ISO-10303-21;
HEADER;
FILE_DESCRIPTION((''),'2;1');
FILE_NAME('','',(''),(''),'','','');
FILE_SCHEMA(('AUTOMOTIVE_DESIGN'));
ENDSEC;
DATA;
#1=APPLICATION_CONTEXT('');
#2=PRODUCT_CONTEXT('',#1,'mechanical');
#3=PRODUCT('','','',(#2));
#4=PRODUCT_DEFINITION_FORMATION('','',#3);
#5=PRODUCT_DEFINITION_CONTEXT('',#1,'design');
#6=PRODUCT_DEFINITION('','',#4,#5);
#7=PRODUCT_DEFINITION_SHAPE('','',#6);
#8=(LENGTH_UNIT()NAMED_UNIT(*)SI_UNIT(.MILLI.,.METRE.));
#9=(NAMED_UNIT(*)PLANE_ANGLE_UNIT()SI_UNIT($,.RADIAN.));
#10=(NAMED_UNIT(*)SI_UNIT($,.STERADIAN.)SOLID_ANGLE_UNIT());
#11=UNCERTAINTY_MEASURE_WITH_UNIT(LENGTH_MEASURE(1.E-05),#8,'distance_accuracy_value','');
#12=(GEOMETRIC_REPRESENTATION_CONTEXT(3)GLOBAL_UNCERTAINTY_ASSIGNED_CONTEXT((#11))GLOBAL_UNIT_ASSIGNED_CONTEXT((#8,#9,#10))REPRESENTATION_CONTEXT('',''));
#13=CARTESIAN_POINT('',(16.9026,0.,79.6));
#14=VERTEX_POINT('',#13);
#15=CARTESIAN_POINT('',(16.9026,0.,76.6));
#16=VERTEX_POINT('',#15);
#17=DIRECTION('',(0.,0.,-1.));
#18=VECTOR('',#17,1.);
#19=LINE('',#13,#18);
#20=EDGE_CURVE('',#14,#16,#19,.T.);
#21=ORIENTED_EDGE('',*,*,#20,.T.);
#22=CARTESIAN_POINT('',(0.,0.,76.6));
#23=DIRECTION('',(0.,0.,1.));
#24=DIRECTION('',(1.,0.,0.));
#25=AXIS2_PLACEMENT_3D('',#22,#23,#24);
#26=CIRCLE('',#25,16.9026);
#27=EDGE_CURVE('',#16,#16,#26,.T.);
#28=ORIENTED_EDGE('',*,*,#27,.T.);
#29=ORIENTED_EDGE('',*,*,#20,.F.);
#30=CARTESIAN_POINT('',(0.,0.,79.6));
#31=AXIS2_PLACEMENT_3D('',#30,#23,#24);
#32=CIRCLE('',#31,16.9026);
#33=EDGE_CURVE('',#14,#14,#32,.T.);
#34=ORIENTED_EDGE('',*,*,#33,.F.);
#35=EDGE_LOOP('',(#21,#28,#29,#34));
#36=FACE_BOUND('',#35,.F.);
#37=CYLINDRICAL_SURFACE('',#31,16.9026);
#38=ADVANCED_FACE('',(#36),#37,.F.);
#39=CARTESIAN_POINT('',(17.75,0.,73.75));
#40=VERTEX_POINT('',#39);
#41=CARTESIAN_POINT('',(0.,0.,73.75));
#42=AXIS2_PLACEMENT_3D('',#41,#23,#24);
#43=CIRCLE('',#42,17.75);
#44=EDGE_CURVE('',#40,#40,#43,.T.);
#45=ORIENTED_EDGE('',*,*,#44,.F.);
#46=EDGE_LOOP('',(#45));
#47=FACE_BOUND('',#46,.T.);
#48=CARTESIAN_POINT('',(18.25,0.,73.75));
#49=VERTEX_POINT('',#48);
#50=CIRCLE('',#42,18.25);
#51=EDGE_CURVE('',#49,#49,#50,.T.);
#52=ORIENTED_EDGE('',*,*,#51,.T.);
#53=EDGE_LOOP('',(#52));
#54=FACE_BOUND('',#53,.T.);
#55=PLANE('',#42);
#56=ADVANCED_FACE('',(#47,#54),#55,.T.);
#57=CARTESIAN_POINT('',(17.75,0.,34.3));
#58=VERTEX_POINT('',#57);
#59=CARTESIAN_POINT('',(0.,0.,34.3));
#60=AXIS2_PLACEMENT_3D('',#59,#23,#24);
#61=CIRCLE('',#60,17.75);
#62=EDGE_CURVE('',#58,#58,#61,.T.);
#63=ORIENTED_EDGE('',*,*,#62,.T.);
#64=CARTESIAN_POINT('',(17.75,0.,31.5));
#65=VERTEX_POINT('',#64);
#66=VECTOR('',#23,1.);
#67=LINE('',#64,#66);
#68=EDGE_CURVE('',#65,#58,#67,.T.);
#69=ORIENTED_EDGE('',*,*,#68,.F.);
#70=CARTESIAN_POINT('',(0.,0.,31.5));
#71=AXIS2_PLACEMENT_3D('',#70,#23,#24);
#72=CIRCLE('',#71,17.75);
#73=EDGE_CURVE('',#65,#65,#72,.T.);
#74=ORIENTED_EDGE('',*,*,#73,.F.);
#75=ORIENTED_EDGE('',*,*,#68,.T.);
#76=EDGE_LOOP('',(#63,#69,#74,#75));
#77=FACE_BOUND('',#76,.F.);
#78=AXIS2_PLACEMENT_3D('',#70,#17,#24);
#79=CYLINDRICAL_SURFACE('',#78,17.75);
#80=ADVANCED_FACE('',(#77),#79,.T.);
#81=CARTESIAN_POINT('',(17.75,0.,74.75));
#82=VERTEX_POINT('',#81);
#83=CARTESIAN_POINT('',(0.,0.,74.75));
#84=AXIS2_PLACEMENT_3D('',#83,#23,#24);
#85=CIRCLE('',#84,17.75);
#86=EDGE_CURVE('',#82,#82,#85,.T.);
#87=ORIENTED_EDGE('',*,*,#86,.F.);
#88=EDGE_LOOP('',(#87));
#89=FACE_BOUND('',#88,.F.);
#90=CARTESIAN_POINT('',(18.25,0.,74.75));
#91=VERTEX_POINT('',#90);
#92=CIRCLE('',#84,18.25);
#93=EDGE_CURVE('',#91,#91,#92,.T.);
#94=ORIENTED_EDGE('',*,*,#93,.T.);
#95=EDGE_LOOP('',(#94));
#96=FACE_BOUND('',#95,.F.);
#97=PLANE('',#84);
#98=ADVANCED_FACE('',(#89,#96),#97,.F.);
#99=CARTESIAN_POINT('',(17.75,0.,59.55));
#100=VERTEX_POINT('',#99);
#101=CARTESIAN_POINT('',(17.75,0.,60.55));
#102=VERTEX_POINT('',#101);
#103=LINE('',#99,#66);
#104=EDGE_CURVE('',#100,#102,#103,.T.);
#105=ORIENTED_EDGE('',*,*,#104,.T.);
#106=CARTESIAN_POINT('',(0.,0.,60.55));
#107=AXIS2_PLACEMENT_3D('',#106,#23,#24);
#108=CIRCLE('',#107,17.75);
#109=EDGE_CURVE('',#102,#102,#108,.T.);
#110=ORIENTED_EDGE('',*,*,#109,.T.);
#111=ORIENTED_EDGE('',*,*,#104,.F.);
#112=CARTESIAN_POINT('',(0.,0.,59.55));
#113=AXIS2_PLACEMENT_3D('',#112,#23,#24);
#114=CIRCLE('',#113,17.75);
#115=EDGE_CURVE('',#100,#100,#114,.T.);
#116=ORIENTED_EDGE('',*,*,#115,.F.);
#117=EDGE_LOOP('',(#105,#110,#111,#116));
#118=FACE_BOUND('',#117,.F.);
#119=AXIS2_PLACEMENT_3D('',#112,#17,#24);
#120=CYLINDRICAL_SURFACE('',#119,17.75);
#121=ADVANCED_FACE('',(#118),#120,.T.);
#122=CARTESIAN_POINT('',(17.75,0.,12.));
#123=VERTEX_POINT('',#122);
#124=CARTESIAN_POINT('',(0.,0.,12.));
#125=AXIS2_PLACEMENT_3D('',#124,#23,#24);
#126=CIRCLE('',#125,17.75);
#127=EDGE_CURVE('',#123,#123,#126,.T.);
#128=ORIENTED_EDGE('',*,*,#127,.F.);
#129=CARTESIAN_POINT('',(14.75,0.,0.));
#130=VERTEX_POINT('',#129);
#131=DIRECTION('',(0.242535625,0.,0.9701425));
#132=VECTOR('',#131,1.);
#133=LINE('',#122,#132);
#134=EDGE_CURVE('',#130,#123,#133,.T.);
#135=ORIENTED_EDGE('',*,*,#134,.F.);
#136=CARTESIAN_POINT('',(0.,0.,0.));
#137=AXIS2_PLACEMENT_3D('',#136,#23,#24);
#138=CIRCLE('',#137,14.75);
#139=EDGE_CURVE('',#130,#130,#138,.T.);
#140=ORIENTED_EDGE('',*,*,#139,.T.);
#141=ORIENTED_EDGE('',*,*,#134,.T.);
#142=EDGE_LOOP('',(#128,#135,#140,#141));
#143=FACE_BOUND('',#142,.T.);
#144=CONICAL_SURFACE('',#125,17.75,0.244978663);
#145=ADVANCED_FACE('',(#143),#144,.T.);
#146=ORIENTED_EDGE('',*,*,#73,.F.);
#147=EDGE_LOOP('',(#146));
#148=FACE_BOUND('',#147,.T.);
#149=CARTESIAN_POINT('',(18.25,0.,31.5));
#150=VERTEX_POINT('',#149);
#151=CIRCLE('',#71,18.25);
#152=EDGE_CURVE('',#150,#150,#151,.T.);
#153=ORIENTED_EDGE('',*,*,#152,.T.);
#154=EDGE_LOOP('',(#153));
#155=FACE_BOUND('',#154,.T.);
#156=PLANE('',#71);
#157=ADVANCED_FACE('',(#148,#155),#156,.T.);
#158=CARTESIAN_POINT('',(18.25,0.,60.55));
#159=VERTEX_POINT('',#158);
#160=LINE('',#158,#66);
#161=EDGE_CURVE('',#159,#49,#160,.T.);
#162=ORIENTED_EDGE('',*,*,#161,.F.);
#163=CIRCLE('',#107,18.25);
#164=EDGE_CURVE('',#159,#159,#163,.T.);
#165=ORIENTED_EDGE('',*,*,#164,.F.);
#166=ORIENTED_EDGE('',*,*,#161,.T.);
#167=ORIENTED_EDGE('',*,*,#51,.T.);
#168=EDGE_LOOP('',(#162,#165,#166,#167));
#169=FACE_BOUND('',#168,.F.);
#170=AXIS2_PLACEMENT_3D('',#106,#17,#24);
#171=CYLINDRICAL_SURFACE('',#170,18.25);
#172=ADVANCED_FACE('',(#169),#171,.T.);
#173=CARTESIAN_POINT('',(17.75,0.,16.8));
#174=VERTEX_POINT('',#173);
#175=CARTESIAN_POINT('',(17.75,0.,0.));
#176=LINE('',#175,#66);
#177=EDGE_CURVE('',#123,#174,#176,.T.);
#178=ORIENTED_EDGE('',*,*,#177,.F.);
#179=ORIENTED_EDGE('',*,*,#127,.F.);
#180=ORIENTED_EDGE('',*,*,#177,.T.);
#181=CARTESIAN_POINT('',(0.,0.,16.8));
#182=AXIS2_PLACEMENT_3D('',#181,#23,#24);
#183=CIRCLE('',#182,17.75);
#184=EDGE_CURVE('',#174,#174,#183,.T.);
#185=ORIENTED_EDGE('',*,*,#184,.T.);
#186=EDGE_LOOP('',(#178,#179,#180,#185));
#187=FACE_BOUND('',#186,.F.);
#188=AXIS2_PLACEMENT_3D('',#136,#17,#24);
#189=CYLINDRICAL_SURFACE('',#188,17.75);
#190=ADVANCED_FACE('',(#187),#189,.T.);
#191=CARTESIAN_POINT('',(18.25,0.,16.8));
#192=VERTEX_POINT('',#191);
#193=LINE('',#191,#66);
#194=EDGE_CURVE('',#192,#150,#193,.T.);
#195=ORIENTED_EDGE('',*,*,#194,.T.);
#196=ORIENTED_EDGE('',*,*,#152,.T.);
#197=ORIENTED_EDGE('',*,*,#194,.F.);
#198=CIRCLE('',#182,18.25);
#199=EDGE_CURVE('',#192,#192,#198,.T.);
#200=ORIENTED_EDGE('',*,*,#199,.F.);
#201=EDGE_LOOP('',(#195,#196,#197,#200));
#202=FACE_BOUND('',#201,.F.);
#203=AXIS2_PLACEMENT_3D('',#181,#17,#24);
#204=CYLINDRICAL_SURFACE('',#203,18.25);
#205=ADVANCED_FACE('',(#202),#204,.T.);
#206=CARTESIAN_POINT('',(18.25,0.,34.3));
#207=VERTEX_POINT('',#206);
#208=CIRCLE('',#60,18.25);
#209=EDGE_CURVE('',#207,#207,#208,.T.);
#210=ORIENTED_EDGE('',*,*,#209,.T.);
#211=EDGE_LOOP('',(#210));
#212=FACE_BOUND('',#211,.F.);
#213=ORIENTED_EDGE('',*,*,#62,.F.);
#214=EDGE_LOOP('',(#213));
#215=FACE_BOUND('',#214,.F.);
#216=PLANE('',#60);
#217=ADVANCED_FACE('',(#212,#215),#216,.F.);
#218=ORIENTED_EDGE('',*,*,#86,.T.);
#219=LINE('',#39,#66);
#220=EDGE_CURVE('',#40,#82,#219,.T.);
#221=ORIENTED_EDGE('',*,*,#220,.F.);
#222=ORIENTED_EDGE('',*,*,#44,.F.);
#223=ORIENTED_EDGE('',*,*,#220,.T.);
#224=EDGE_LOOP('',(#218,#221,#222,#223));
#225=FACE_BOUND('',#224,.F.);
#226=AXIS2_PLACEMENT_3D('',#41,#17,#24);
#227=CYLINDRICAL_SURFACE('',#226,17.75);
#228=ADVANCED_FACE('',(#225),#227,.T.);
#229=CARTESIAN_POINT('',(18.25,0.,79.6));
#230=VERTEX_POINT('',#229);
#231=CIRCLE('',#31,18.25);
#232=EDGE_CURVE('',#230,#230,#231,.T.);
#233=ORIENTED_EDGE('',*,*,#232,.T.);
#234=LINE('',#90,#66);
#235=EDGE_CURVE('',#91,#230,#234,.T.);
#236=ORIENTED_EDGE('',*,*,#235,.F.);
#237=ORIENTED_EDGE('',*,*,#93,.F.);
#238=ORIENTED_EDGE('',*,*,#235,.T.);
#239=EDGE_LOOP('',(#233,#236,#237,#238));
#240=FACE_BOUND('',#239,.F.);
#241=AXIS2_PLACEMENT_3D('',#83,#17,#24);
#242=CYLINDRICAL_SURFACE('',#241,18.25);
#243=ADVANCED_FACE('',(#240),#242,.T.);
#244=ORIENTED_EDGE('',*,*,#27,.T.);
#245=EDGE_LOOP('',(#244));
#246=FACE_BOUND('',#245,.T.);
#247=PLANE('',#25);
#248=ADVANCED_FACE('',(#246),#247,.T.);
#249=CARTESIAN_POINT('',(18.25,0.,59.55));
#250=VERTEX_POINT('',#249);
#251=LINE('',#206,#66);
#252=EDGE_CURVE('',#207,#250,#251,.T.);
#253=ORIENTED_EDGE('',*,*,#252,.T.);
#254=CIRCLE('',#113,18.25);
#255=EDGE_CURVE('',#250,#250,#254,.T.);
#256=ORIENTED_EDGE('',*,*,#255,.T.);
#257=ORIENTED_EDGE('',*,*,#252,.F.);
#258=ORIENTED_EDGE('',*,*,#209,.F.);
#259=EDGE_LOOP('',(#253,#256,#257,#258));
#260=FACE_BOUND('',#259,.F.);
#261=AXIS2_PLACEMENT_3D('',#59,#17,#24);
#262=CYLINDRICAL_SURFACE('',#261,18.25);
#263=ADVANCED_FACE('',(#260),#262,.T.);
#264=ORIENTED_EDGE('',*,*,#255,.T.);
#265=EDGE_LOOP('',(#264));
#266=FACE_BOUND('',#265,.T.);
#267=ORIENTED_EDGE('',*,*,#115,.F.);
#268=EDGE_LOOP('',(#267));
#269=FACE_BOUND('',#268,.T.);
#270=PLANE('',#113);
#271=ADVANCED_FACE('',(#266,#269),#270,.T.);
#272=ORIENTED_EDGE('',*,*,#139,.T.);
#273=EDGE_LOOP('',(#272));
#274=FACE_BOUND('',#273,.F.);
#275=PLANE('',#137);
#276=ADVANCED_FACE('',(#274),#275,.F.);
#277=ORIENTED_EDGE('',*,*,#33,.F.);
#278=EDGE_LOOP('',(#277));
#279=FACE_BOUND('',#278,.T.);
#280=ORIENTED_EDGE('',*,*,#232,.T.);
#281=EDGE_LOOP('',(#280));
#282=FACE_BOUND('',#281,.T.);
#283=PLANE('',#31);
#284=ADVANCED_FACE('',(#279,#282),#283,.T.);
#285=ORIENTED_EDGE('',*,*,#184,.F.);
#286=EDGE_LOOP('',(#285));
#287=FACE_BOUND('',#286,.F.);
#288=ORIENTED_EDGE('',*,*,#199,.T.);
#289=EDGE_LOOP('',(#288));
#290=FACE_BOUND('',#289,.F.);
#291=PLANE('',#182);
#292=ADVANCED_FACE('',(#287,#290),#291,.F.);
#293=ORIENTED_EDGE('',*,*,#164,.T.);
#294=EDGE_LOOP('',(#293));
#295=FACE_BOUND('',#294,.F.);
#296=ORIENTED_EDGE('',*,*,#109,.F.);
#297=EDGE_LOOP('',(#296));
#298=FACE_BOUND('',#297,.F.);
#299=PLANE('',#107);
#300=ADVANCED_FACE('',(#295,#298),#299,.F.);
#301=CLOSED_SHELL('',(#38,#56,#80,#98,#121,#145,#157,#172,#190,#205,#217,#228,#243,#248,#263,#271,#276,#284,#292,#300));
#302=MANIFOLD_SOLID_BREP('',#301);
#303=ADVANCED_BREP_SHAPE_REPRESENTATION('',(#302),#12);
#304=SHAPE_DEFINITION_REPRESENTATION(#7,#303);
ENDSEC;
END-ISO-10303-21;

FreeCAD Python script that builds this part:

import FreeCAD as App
import Part
import Sketcher
Q = App.Units.Quantity


def edges_at(feature, points):
    """Names of the edges that pass closest to the given points."""
    edges = feature.Shape.Edges
    near = lambda p: min(range(len(edges)), key=lambda i: edges[i].distToShape(Part.Vertex(*p))[0])
    return sorted({f"Edge{near(p) + 1}" for p in points})

doc = App.newDocument("Part")
body = doc.addObject("PartDesign::Body", "Body")

# Sketch on XY plane
sketch1 = doc.addObject("Sketcher::SketchObject", "Sketch")
body.addObject(sketch1)
sketch1.AttachmentSupport = (doc.XY_Plane, [""])
sketch1.MapMode = "FlatFace"
sketch1.addGeometry(Part.Circle(App.Vector(0, 0, 0), App.Vector(0, 0, 1), 18), False)
sketch1.addConstraint(Sketcher.Constraint("Coincident", 0, 3, -1, 1))
sketch1.addConstraint(Sketcher.Constraint("Diameter", 0, Q("35.5 mm")))
pad1 = doc.addObject("PartDesign::Pad", "Pad")
body.addObject(pad1)
pad1.Profile = sketch1
pad1.Length = 16.8

# Sketch on XY plane
sketch2 = doc.addObject("Sketcher::SketchObject", "Sketch001")
body.addObject(sketch2)
sketch2.AttachmentSupport = (doc.XY_Plane, [""])
sketch2.MapMode = "FlatFace"
sketch2.AttachmentOffset = App.Placement(App.Vector(0, 0, 16.8), App.Rotation())
sketch2.addGeometry(Part.Circle(App.Vector(0, 0, 0), App.Vector(0, 0, 1), 18), False)
sketch2.addConstraint(Sketcher.Constraint("Coincident", 0, 3, -1, 1))
sketch2.addConstraint(Sketcher.Constraint("Diameter", 0, Q("36.5 mm")))
pad2 = doc.addObject("PartDesign::Pad", "Pad001")
body.addObject(pad2)
pad2.Profile = sketch2
pad2.Length = 14.7
doc.recompute()

chamfer = doc.addObject("PartDesign::Chamfer", "Chamfer")
body.addObject(chamfer)
chamfer.Base = (pad2, edges_at(pad2, [(-17.75, 0, 0)]))
chamfer.ChamferType = "Two distances"
chamfer.Size = 3
chamfer.Size2 = 12
chamfer.FlipDirection = True

# Sketch on XY plane
sketch3 = doc.addObject("Sketcher::SketchObject", "Sketch002")
body.addObject(sketch3)
sketch3.AttachmentSupport = (doc.XY_Plane, [""])
sketch3.MapMode = "FlatFace"
sketch3.AttachmentOffset = App.Placement(App.Vector(0, 0, 31.5), App.Rotation())
sketch3.addGeometry(Part.Circle(App.Vector(0, 0, 0), App.Vector(0, 0, 1), 18), False)
sketch3.addConstraint(Sketcher.Constraint("Coincident", 0, 3, -1, 1))
sketch3.addConstraint(Sketcher.Constraint("Diameter", 0, Q("35.5 mm")))
pad3 = doc.addObject("PartDesign::Pad", "Pad002")
body.addObject(pad3)
pad3.Profile = sketch3
pad3.Length = 2.8

# Sketch on XY plane
sketch4 = doc.addObject("Sketcher::SketchObject", "Sketch003")
body.addObject(sketch4)
sketch4.AttachmentSupport = (doc.XY_Plane, [""])
sketch4.MapMode = "FlatFace"
sketch4.AttachmentOffset = App.Placement(App.Vector(0, 0, 34.3), App.Rotation())
sketch4.addGeometry(Part.Circle(App.Vector(0, 0, 0), App.Vector(0, 0, 1), 18), False)
sketch4.addConstraint(Sketcher.Constraint("Coincident", 0, 3, -1, 1))
sketch4.addConstraint(Sketcher.Constraint("Diameter", 0, Q("36.5 mm")))
pad4 = doc.addObject("PartDesign::Pad", "Pad003")
body.addObject(pad4)
pad4.Profile = sketch4
pad4.Length = 25.25

# Sketch on XY plane
sketch5 = doc.addObject("Sketcher::SketchObject", "Sketch004")
body.addObject(sketch5)
sketch5.AttachmentSupport = (doc.XY_Plane, [""])
sketch5.MapMode = "FlatFace"
sketch5.AttachmentOffset = App.Placement(App.Vector(0, 0, 59.55), App.Rotation())
sketch5.addGeometry(Part.Circle(App.Vector(0, 0, 0), App.Vector(0, 0, 1), 18), False)
sketch5.addConstraint(Sketcher.Constraint("Coincident", 0, 3, -1, 1))
sketch5.addConstraint(Sketcher.Constraint("Diameter", 0, Q("35.5 mm")))
pad5 = doc.addObject("PartDesign::Pad", "Pad004")
body.addObject(pad5)
pad5.Profile = sketch5
pad5.Length = 1

# Sketch on XY plane
sketch6 = doc.addObject("Sketcher::SketchObject", "Sketch005")
body.addObject(sketch6)
sketch6.AttachmentSupport = (doc.XY_Plane, [""])
sketch6.MapMode = "FlatFace"
sketch6.AttachmentOffset = App.Placement(App.Vector(0, 0, 60.55), App.Rotation())
sketch6.addGeometry(Part.Circle(App.Vector(0, 0, 0), App.Vector(0, 0, 1), 18), False)
sketch6.addConstraint(Sketcher.Constraint("Coincident", 0, 3, -1, 1))
sketch6.addConstraint(Sketcher.Constraint("Diameter", 0, Q("36.5 mm")))
pad6 = doc.addObject("PartDesign::Pad", "Pad005")
body.addObject(pad6)
pad6.Profile = sketch6
pad6.Length = 13.2

# Sketch on XY plane
sketch7 = doc.addObject("Sketcher::SketchObject", "Sketch006")
body.addObject(sketch7)
sketch7.AttachmentSupport = (doc.XY_Plane, [""])
sketch7.MapMode = "FlatFace"
sketch7.AttachmentOffset = App.Placement(App.Vector(0, 0, 73.75), App.Rotation())
sketch7.addGeometry(Part.Circle(App.Vector(0, 0, 0), App.Vector(0, 0, 1), 18), False)
sketch7.addConstraint(Sketcher.Constraint("Coincident", 0, 3, -1, 1))
sketch7.addConstraint(Sketcher.Constraint("Diameter", 0, Q("35.5 mm")))
pad7 = doc.addObject("PartDesign::Pad", "Pad006")
body.addObject(pad7)
pad7.Profile = sketch7
pad7.Length = 1

# Sketch on XY plane
sketch8 = doc.addObject("Sketcher::SketchObject", "Sketch007")
body.addObject(sketch8)
sketch8.AttachmentSupport = (doc.XY_Plane, [""])
sketch8.MapMode = "FlatFace"
sketch8.AttachmentOffset = App.Placement(App.Vector(0, 0, 74.75), App.Rotation())
sketch8.addGeometry(Part.Circle(App.Vector(0, 0, 0), App.Vector(0, 0, 1), 18), False)
sketch8.addConstraint(Sketcher.Constraint("Coincident", 0, 3, -1, 1))
sketch8.addConstraint(Sketcher.Constraint("Diameter", 0, Q("36.5 mm")))
pad8 = doc.addObject("PartDesign::Pad", "Pad007")
body.addObject(pad8)
pad8.Profile = sketch8
pad8.Length = 4.85

# Sketch on XY plane
sketch9 = doc.addObject("Sketcher::SketchObject", "Sketch008")
body.addObject(sketch9)
sketch9.AttachmentSupport = (doc.XY_Plane, [""])
sketch9.MapMode = "FlatFace"
sketch9.AttachmentOffset = App.Placement(App.Vector(0, 0, 79.6), App.Rotation())
sketch9.addGeometry(Part.Circle(App.Vector(0, 0, 0), App.Vector(0, 0, 1), 17), False)
sketch9.addConstraint(Sketcher.Constraint("Coincident", 0, 3, -1, 1))
sketch9.addConstraint(Sketcher.Constraint("Diameter", 0, Q("33.8052 mm")))
pocket1 = doc.addObject("PartDesign::Pocket", "Pocket")
body.addObject(pocket1)
pocket1.Profile = sketch9
pocket1.Length = 3

doc.recompute()
